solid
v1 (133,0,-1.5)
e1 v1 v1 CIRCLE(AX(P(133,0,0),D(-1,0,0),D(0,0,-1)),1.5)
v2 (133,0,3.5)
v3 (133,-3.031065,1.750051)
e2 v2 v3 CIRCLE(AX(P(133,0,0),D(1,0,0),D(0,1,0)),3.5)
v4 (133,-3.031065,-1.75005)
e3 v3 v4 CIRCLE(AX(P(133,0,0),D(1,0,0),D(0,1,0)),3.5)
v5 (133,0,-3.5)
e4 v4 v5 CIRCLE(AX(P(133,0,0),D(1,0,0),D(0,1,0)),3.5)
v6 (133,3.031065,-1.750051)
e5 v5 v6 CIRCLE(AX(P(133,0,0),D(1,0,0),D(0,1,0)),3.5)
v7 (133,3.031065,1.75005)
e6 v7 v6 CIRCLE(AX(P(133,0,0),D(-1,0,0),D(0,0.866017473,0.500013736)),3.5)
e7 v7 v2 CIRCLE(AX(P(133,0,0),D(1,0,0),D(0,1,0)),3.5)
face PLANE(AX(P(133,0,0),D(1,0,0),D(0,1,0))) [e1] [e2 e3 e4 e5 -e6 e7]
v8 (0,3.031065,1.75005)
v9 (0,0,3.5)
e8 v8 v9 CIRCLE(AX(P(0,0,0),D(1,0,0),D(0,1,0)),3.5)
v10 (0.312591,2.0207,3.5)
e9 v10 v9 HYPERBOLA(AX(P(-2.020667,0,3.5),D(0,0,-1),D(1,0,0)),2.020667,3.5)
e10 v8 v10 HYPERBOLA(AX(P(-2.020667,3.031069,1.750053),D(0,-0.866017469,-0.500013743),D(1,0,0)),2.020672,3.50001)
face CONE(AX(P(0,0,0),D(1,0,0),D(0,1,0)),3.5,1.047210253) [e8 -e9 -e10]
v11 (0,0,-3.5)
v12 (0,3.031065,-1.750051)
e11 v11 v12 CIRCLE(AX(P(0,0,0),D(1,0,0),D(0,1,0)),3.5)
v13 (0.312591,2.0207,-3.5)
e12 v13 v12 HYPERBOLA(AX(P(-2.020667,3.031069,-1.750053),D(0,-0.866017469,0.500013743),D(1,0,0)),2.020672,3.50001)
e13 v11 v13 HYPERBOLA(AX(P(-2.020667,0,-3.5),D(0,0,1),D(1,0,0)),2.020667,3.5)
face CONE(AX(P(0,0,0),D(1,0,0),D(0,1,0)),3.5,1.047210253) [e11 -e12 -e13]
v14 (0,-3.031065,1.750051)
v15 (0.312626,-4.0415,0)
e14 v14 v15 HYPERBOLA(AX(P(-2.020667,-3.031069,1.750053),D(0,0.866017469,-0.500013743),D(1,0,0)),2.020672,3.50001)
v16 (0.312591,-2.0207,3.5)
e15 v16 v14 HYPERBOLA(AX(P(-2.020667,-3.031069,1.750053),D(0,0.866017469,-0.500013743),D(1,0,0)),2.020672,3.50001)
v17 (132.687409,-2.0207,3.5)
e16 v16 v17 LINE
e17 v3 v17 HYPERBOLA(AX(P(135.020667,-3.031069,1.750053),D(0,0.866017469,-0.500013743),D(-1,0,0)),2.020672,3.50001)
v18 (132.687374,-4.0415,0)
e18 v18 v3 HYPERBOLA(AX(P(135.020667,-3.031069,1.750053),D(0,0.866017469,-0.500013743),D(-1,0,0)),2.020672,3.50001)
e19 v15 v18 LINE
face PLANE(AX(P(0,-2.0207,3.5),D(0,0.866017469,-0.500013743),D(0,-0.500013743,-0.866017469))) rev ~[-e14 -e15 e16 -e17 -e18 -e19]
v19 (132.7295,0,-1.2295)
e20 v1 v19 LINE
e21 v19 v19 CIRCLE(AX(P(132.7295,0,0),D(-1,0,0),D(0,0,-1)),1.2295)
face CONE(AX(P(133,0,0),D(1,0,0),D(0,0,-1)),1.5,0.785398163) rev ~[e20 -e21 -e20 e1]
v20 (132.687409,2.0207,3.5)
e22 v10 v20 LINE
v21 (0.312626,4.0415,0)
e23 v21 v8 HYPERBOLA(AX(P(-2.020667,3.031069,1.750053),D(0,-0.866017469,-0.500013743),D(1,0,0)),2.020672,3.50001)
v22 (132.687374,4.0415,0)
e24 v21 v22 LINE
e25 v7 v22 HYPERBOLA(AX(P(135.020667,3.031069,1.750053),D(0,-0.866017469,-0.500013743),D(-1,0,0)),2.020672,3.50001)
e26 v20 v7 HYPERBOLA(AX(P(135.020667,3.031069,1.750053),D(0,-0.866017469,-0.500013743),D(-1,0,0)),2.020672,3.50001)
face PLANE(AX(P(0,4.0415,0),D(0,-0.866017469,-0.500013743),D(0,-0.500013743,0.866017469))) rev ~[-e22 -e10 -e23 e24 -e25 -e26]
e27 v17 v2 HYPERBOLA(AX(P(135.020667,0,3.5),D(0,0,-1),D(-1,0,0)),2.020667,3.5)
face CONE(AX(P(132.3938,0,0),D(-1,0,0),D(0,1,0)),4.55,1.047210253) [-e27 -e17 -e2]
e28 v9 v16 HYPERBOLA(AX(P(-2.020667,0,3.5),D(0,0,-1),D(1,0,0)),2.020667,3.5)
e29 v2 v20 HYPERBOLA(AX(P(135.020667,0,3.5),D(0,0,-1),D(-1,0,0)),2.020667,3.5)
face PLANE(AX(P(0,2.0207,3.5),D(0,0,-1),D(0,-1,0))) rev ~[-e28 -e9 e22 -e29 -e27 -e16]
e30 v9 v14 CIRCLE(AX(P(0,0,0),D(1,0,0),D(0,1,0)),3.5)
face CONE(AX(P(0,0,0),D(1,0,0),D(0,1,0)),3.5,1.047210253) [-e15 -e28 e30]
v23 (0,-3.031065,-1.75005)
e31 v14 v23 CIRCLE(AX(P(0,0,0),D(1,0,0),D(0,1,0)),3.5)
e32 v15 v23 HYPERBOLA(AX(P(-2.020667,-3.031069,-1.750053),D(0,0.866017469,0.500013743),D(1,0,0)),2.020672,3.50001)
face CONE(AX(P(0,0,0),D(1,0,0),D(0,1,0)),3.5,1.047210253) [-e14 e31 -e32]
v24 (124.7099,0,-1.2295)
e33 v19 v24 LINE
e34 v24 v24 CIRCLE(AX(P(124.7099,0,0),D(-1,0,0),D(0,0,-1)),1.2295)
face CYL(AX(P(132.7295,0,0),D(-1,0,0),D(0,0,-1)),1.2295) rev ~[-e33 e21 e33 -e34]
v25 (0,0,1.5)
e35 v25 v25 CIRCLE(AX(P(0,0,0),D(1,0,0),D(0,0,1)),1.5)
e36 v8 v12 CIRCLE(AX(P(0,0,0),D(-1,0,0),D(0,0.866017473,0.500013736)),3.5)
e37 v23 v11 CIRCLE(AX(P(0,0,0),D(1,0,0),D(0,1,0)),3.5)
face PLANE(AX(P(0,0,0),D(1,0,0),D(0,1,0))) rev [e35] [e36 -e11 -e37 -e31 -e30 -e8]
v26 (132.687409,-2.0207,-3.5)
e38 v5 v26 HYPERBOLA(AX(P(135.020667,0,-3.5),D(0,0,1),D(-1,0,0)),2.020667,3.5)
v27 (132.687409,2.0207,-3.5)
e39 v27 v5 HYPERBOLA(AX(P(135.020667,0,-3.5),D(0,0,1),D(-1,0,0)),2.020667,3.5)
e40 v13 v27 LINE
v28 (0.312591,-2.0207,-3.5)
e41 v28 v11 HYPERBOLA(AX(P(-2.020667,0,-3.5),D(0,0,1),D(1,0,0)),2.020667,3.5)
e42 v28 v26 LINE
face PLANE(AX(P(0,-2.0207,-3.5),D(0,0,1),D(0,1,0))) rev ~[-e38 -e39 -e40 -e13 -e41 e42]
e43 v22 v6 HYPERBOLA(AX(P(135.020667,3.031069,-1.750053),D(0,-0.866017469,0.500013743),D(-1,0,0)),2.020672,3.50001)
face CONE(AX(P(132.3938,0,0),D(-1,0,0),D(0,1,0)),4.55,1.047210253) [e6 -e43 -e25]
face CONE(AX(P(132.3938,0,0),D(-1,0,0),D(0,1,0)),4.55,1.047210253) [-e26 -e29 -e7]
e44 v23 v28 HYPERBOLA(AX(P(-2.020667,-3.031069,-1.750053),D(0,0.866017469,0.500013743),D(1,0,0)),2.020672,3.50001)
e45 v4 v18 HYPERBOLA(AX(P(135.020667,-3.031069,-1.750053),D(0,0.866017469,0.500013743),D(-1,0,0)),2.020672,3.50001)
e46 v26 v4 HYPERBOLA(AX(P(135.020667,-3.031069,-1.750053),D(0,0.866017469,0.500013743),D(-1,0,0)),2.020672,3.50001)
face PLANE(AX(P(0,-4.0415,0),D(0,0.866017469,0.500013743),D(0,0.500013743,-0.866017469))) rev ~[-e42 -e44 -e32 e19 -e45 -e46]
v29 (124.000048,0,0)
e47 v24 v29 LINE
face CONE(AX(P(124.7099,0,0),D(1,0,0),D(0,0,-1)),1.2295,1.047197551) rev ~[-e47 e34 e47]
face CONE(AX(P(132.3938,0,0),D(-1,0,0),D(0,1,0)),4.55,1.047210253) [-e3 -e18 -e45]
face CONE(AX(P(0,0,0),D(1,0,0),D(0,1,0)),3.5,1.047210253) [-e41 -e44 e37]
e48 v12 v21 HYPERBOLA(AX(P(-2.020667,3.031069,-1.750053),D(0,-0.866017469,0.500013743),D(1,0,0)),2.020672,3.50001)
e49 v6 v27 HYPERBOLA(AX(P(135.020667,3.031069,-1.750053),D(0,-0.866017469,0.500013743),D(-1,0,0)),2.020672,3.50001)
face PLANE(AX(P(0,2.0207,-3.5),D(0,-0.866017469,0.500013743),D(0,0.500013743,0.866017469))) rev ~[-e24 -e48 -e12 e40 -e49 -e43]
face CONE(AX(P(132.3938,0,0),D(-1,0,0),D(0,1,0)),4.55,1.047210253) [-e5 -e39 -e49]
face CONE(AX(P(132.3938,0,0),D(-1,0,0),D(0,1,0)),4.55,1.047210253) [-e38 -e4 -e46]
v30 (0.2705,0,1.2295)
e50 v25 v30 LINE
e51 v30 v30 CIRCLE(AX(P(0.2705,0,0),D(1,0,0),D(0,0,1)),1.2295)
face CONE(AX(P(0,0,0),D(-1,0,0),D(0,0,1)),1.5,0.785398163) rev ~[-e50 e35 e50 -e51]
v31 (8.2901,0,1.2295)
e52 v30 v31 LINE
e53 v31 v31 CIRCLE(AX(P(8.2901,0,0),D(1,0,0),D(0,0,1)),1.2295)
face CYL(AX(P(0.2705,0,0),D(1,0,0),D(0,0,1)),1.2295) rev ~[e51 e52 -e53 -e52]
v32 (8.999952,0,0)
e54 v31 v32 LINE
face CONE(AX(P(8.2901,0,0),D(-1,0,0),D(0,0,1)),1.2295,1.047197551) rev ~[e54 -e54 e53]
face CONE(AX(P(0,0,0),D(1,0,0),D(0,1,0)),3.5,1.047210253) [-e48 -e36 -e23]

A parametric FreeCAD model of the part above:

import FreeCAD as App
import Part
import Sketcher
from FreeCAD import Vector
Q = App.Units.Quantity

doc = App.newDocument("Part")
body = doc.addObject("PartDesign::Body", "Body")

sketch1 = body.newObject("Sketcher::SketchObject", "Sketch")
sketch1.AttachmentSupport = (doc.getObject("XY_Plane"), [""])
sketch1.MapMode = "FlatFace"
sketch1.addGeometry([
    Part.LineSegment(Vector(0, 0, 0), Vector(133, 0, 0)),
    Part.LineSegment(Vector(133, 0, 0), Vector(133, 3.5, 0)),
    Part.LineSegment(Vector(133, 3.5, 0), Vector(132.3938, 4.55, 0)),
    Part.LineSegment(Vector(132.3938, 4.55, 0), Vector(0.6062, 4.55, 0)),
    Part.LineSegment(Vector(0.6062, 4.55, 0), Vector(0, 3.5, 0)),
    Part.LineSegment(Vector(0, 3.5, 0), Vector(0, 0, 0)),
], False)
sketch1.addConstraint([
    Sketcher.Constraint("Coincident", 0, 2, 1, 1),
    Sketcher.Constraint("Coincident", 1, 2, 2, 1),
    Sketcher.Constraint("Coincident", 2, 2, 3, 1),
    Sketcher.Constraint("Coincident", 3, 2, 4, 1),
    Sketcher.Constraint("Coincident", 4, 2, 5, 1),
    Sketcher.Constraint("Coincident", 5, 2, 0, 1),
    Sketcher.Constraint("Horizontal", 0),
    Sketcher.Constraint("Vertical", 1),
    Sketcher.Constraint("Horizontal", 3),
    Sketcher.Constraint("Vertical", 5),
    Sketcher.Constraint("Coincident", 5, 2, -1, 1),
    Sketcher.Constraint("Horizontal", 1, 2, 4, 2),
    Sketcher.Constraint("Equal", 2, 4),
    Sketcher.Constraint("DistanceX", 0, 1, 0, 2, Q("133 mm")),
    Sketcher.Constraint("Angle", 2, Q("119.9993 deg")),
    Sketcher.Constraint("DistanceY", 1, 1, 1, 2, Q("3.5 mm")),
    Sketcher.Constraint("DistanceY", -1, 1, 2, 2, Q("4.55 mm")),
])
revolution = body.newObject("PartDesign::Revolution", "Revolution")
revolution.Profile = sketch1
revolution.ReferenceAxis = (sketch1, ["H_Axis"])
revolution.Angle = 360

sketch2 = body.newObject("Sketcher::SketchObject", "Sketch001")
sketch2.AttachmentSupport = (doc.getObject("YZ_Plane"), [""])
sketch2.MapMode = "FlatFace"
sketch2.addGeometry([
    Part.LineSegment(Vector(7, -7, 0), Vector(7, 7, 0)),
    Part.LineSegment(Vector(7, 7, 0), Vector(-7, 7, 0)),
    Part.LineSegment(Vector(-7, 7, 0), Vector(-7, -7, 0)),
    Part.LineSegment(Vector(-7, -7, 0), Vector(7, -7, 0)),
    Part.LineSegment(Vector(-4.0415, 0, 0), Vector(-2.0207, 3.5, 0)),
    Part.LineSegment(Vector(-2.0207, 3.5, 0), Vector(2.0207, 3.5, 0)),
    Part.LineSegment(Vector(2.0207, 3.5, 0), Vector(4.0415, 0, 0)),
    Part.LineSegment(Vector(4.0415, 0, 0), Vector(2.0207, -3.5, 0)),
    Part.LineSegment(Vector(2.0207, -3.5, 0), Vector(-2.0207, -3.5, 0)),
    Part.LineSegment(Vector(-2.0207, -3.5, 0), Vector(-4.0415, 0, 0)),
], False)
sketch2.addConstraint([
    Sketcher.Constraint("Coincident", 0, 2, 1, 1),
    Sketcher.Constraint("Coincident", 1, 2, 2, 1),
    Sketcher.Constraint("Coincident", 2, 2, 3, 1),
    Sketcher.Constraint("Coincident", 3, 2, 0, 1),
    Sketcher.Constraint("Coincident", 4, 2, 5, 1),
    Sketcher.Constraint("Coincident", 5, 2, 6, 1),
    Sketcher.Constraint("Coincident", 6, 2, 7, 1),
    Sketcher.Constraint("Coincident", 7, 2, 8, 1),
    Sketcher.Constraint("Coincident", 8, 2, 9, 1),
    Sketcher.Constraint("Coincident", 9, 2, 4, 1),
    Sketcher.Constraint("Vertical", 0),
    Sketcher.Constraint("Horizontal", 1),
    Sketcher.Constraint("Vertical", 2),
    Sketcher.Constraint("Horizontal", 3),
    Sketcher.Constraint("Horizontal", 5),
    Sketcher.Constraint("Horizontal", 8),
    Sketcher.Constraint("Symmetric", 0, 2, 2, 2, -1, 1),
    Sketcher.Constraint("Symmetric", 4, 2, 7, 2, -1, 1),
    Sketcher.Constraint("Symmetric", 6, 2, 9, 2, -1, 1),
    Sketcher.Constraint("PointOnObject", 6, 2, -1),
    Sketcher.Constraint("Parallel", 6, 9),
    Sketcher.Constraint("Vertical", 5, 2, 7, 2),
    Sketcher.Constraint("Equal", 3, 0),
    Sketcher.Constraint("DistanceX", 1, 2, 1, 1, Q("14 mm")),
    Sketcher.Constraint("Angle", 4, Q("59.999 deg")),
    Sketcher.Constraint("DistanceY", 7, 2, 5, 2, Q("7 mm")),
    Sketcher.Constraint("DistanceX", 5, 1, 5, 2, Q("4.0414 mm")),
])
pocket1 = body.newObject("PartDesign::Pocket", "Pocket")
pocket1.Profile = sketch2
pocket1.Length = 133
pocket1.Reversed = True

sketch3 = body.newObject("Sketcher::SketchObject", "Sketch002")
sketch3.AttachmentSupport = (doc.getObject("YZ_Plane"), [""])
sketch3.MapMode = "FlatFace"
sketch3.addGeometry(Part.Circle(Vector(0, 0, 0), Vector(0, 0, 1), 1.2295), False)
sketch3.addConstraint([
    Sketcher.Constraint("Coincident", 0, 3, -1, 1),
    Sketcher.Constraint("Diameter", 0, Q("2.459 mm")),
])
doc.recompute()
hole = body.newObject("PartDesign::Hole", "Hole")
hole.Profile = sketch3
hole.ThreadType = "None"
hole.Diameter = 2.459
hole.DepthType = "Dimension"
hole.Depth = 8.2901
hole.DrillPoint = "Angled"
hole.DrillPointAngle = 120
hole.HoleCutType = "Countersink"
hole.HoleCutDiameter = 3
hole.HoleCutCountersinkAngle = 90
hole.Reversed = True

sketch4 = body.newObject("Sketcher::SketchObject", "Sketch003")
sketch4.AttachmentSupport = (doc.getObject("YZ_Plane"), [""])
sketch4.MapMode = "FlatFace"
sketch4.AttachmentOffset = App.Placement(Vector(0, 0, 133), App.Rotation())
sketch4.addGeometry(Part.Circle(Vector(0, 0, 0), Vector(0, 0, 1), 1.2295), False)
sketch4.addConstraint([
    Sketcher.Constraint("Coincident", 0, 3, -1, 1),
    Sketcher.Constraint("Diameter", 0, Q("2.459 mm")),
])
doc.recompute()
hole2 = body.newObject("PartDesign::Hole", "Hole001")
hole2.Profile = sketch4
hole2.ThreadType = "None"
hole2.Diameter = 2.459
hole2.DepthType = "Dimension"
hole2.Depth = 8.2901
hole2.DrillPoint = "Angled"
hole2.DrillPointAngle = 120
hole2.HoleCutType = "Countersink"
hole2.HoleCutDiameter = 3
hole2.HoleCutCountersinkAngle = 90

doc.recompute()
